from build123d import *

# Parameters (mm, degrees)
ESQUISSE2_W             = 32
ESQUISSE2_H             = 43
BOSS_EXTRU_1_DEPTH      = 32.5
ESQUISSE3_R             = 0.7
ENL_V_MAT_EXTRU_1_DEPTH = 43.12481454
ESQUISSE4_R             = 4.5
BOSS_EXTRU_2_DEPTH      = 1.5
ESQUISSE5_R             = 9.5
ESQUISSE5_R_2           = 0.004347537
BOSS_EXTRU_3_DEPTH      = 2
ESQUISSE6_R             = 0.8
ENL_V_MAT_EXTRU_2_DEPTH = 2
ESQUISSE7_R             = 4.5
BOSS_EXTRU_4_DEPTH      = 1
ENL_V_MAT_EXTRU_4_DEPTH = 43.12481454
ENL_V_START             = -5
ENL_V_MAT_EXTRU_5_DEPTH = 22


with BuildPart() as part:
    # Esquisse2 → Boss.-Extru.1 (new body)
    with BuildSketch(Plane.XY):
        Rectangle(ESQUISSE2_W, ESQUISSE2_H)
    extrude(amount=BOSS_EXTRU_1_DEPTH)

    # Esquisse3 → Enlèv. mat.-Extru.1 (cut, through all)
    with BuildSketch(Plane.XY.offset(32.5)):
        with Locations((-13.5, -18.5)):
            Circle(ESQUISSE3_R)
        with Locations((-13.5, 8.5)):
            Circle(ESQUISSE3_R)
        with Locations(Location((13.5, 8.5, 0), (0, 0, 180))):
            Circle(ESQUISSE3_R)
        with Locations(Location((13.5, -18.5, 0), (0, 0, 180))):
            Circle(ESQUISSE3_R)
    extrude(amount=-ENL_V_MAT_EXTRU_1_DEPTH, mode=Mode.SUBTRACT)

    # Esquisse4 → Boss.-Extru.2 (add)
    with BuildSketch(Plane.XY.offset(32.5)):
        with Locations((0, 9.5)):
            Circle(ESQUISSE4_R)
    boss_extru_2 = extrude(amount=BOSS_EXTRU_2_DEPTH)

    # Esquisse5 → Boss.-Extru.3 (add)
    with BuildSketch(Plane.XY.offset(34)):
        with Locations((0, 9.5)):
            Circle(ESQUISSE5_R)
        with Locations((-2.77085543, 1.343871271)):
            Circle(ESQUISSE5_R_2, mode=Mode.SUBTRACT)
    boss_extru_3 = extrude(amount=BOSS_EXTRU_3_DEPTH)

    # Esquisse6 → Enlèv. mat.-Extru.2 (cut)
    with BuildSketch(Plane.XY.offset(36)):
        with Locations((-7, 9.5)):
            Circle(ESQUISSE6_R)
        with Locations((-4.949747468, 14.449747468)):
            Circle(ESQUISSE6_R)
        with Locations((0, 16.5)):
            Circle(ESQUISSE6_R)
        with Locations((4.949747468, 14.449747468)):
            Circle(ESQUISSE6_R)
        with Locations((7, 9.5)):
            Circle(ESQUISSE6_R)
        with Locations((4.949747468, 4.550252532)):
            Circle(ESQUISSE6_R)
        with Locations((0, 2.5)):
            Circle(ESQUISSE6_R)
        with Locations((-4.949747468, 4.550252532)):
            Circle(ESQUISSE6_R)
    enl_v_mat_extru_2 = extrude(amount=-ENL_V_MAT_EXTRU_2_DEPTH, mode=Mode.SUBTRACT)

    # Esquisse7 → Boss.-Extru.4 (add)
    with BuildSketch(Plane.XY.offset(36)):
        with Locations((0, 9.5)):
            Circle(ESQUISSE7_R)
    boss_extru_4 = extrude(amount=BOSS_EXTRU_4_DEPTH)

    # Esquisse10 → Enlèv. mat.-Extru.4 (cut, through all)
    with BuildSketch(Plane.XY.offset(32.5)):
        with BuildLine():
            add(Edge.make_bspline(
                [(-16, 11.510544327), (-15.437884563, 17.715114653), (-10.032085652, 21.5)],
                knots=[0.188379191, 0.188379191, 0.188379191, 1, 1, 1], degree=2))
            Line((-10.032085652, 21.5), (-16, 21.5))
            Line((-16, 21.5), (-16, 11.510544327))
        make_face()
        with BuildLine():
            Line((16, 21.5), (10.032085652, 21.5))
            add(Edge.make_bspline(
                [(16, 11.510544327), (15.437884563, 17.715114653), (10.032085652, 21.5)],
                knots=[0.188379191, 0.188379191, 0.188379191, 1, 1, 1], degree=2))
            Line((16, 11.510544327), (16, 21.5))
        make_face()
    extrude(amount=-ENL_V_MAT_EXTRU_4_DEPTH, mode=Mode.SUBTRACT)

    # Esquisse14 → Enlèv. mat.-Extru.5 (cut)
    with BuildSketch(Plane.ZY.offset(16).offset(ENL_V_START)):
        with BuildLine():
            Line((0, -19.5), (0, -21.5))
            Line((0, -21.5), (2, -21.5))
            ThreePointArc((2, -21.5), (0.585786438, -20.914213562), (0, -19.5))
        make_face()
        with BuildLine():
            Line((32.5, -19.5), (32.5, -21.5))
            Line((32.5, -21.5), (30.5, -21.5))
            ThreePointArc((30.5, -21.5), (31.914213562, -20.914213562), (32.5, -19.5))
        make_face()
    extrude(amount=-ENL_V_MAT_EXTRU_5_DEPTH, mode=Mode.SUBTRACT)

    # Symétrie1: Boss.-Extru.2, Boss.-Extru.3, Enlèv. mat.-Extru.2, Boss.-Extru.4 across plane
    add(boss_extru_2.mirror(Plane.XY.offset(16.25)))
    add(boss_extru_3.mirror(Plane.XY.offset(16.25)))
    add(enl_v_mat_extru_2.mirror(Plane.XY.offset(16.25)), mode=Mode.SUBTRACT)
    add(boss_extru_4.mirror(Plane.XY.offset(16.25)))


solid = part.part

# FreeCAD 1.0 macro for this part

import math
import FreeCAD as App
import Part
import Sketcher

V = App.Vector

doc = App.newDocument("Part")
params = doc.addObject("Spreadsheet::Sheet", "Params")
for row, (alias, value) in enumerate([
    ("sketch1_width", "32 mm"),
    ("sketch1_height", "43 mm"),
    ("pad1_length", "32.5 mm"),
    ("sketch2_diameter", "1.4 mm"),
    ("sketch3_diameter", "9 mm"),
    ("pad2_length", "1.5 mm"),
    ("sketch4_diameter", "19 mm"),
    ("pad3_length", "2 mm"),
    ("sketch5_diameter", "1.6 mm"),
    ("pocket2_length", "2 mm"),
    ("sketch6_diameter", "9 mm"),
    ("pad4_length", "1 mm"),
    ("sketch8_radius", "2 mm"),
    ("pocket4_length", "22 mm"),
], start=1):
    params.set(f"A{row}", alias)
    params.set(f"B{row}", "=" + value)
    params.setAlias(f"B{row}", alias)

body = doc.addObject("PartDesign::Body", "Body")

# Sketch on XY plane
sketch1 = body.newObject("Sketcher::SketchObject", "Sketch")
sketch1.AttachmentSupport = (doc.getObject("XY_Plane"), [""])
sketch1.MapMode = "FlatFace"
sketch1.addGeometry([
    Part.LineSegment(V(-16, 21.5, 0), V(-16, -21.5, 0)),
    Part.LineSegment(V(-16, -21.5, 0), V(16, -21.5, 0)),
    Part.LineSegment(V(16, -21.5, 0), V(16, 21.5, 0)),
    Part.LineSegment(V(16, 21.5, 0), V(-16, 21.5, 0)),
], False)
sketch1.addConstraint([
    Sketcher.Constraint("Coincident", 0, 2, 1, 1),
    Sketcher.Constraint("Coincident", 1, 2, 2, 1),
    Sketcher.Constraint("Coincident", 2, 2, 3, 1),
    Sketcher.Constraint("Coincident", 3, 2, 0, 1),
    Sketcher.Constraint("Vertical", 0),
    Sketcher.Constraint("Horizontal", 1),
    Sketcher.Constraint("Vertical", 2),
    Sketcher.Constraint("Horizontal", 3),
    Sketcher.Constraint("Symmetric", 0, 2, 2, 2, -1, 1),
    Sketcher.Constraint("DistanceX", 1, 1, 1, 2, 32.0),
    Sketcher.Constraint("DistanceY", 0, 2, 0, 1, 43.0),
])
sketch1.setExpression("Constraints[9]", "Params.sketch1_width")
sketch1.setExpression("Constraints[10]", "Params.sketch1_height")
pad1 = body.newObject("PartDesign::Pad", "Pad")
pad1.Profile = sketch1
pad1.setExpression("Length", "Params.pad1_length")

# Sketch on XY plane
sketch2 = body.newObject("Sketcher::SketchObject", "Sketch001")
sketch2.AttachmentSupport = (doc.getObject("XY_Plane"), [""])
sketch2.MapMode = "FlatFace"
sketch2.AttachmentOffset = App.Placement(V(0, 0, 32.5), App.Rotation())
sketch2.addGeometry([
    Part.Circle(V(-13.5, -18.5, 0), V(0, 0, 1), 0.7),
    Part.Circle(V(-13.5, 8.5, 0), V(0, 0, 1), 0.7),
    Part.Circle(V(13.5, 8.5, 0), V(0, 0, 1), 0.7),
    Part.Circle(V(13.5, -18.5, 0), V(0, 0, 1), 0.7),
], False)
sketch2.addConstraint([
    Sketcher.Constraint("Equal", 0, 1),
    Sketcher.Constraint("Equal", 1, 2),
    Sketcher.Constraint("Equal", 2, 3),
    Sketcher.Constraint("Symmetric", 1, 3, 2, 3, -2),
    Sketcher.Constraint("Symmetric", 0, 3, 3, 3, -2),
    Sketcher.Constraint("Vertical", 0, 3, 1, 3),
    Sketcher.Constraint("Diameter", 0, 1.4),
    Sketcher.Constraint("DistanceY", 0, 3, 1, 3, 27.0),
    Sketcher.Constraint("DistanceX", 1, 3, 2, 3, 27.0),
    Sketcher.Constraint("DistanceY", 0, 3, -1, 1, 18.5),
])
sketch2.setExpression("Constraints[6]", "Params.sketch2_diameter")
pocket1 = body.newObject("PartDesign::Pocket", "Pocket")
pocket1.Profile = sketch2
pocket1.Type = "ThroughAll"

# Sketch on XY plane
sketch3 = body.newObject("Sketcher::SketchObject", "Sketch002")
sketch3.AttachmentSupport = (doc.getObject("XY_Plane"), [""])
sketch3.MapMode = "FlatFace"
sketch3.AttachmentOffset = App.Placement(V(0, 0, 32.5), App.Rotation())
sketch3.addGeometry(Part.Circle(V(0, 9.5, 0), V(0, 0, 1), 4.5), False)
sketch3.addConstraint([
    Sketcher.Constraint("PointOnObject", 0, 3, -2),
    Sketcher.Constraint("Diameter", 0, 9.0),
    Sketcher.Constraint("DistanceY", -1, 1, 0, 3, 9.5),
])
sketch3.setExpression("Constraints[1]", "Params.sketch3_diameter")
pad2 = body.newObject("PartDesign::Pad", "Pad001")
pad2.Profile = sketch3
pad2.setExpression("Length", "Params.pad2_length")

# Sketch on XY plane
sketch4 = body.newObject("Sketcher::SketchObject", "Sketch003")
sketch4.AttachmentSupport = (doc.getObject("XY_Plane"), [""])
sketch4.MapMode = "FlatFace"
sketch4.AttachmentOffset = App.Placement(V(0, 0, 34), App.Rotation())
sketch4.addGeometry([
    Part.Circle(V(0, 9.5, 0), V(0, 0, 1), 9.5),
    Part.Circle(V(-2.770855, 1.343871, 0), V(0, 0, 1), 0.004348),
], False)
sketch4.addConstraint([
    Sketcher.Constraint("PointOnObject", 0, 3, -2),
    Sketcher.Constraint("Diameter", 0, 19.0),
    Sketcher.Constraint("DistanceY", -1, 1, 0, 3, 9.5),
    Sketcher.Constraint("Diameter", 1, 0.008695),
    Sketcher.Constraint("DistanceY", -1, 1, 1, 3, 1.343871),
    Sketcher.Constraint("DistanceX", 1, 3, -1, 1, 2.770855),
])
sketch4.setExpression("Constraints[1]", "Params.sketch4_diameter")
pad3 = body.newObject("PartDesign::Pad", "Pad002")
pad3.Profile = sketch4
pad3.setExpression("Length", "Params.pad3_length")

# Sketch on XY plane
sketch5 = body.newObject("Sketcher::SketchObject", "Sketch004")
sketch5.AttachmentSupport = (doc.getObject("XY_Plane"), [""])
sketch5.MapMode = "FlatFace"
sketch5.AttachmentOffset = App.Placement(V(0, 0, 36), App.Rotation())
sketch5.addGeometry([
    Part.Circle(V(-7, 9.5, 0), V(0, 0, 1), 0.8),  # 0
    Part.Circle(V(-4.949747, 14.449747, 0), V(0, 0, 1), 0.8),  # 1
    Part.Circle(V(0, 16.5, 0), V(0, 0, 1), 0.8),  # 2
    Part.Circle(V(4.949747, 14.449747, 0), V(0, 0, 1), 0.8),  # 3
    Part.Circle(V(7, 9.5, 0), V(0, 0, 1), 0.8),  # 4
    Part.Circle(V(4.949747, 4.550253, 0), V(0, 0, 1), 0.8),  # 5
    Part.Circle(V(0, 2.5, 0), V(0, 0, 1), 0.8),  # 6
    Part.Circle(V(-4.949747, 4.550253, 0), V(0, 0, 1), 0.8),  # 7
], False)
sketch5.addConstraint([
    Sketcher.Constraint("Equal", 0, 1),
    Sketcher.Constraint("Equal", 1, 2),
    Sketcher.Constraint("Equal", 2, 3),
    Sketcher.Constraint("Equal", 3, 4),
    Sketcher.Constraint("Equal", 4, 5),
    Sketcher.Constraint("Equal", 5, 6),
    Sketcher.Constraint("Equal", 6, 7),
    Sketcher.Constraint("Symmetric", 1, 3, 3, 3, -2),
    Sketcher.Constraint("Symmetric", 0, 3, 4, 3, -2),
    Sketcher.Constraint("Symmetric", 5, 3, 7, 3, -2),
    Sketcher.Constraint("PointOnObject", 2, 3, -2),
    Sketcher.Constraint("PointOnObject", 6, 3, -2),
    Sketcher.Constraint("Vertical", 3, 3, 5, 3),
    Sketcher.Constraint("Diameter", 0, 1.6),
    Sketcher.Constraint("DistanceX", 0, 3, -1, 1, 7.0),
    Sketcher.Constraint("DistanceY", 0, 3, 2, 3, 7.0),
    Sketcher.Constraint("DistanceY", 6, 3, 0, 3, 7.0),
    Sketcher.Constraint("DistanceY", -1, 1, 0, 3, 9.5),
    Sketcher.Constraint("DistanceX", 1, 3, -1, 1, 4.949747),
    Sketcher.Constraint("DistanceY", -1, 1, 1, 3, 14.449747),
    Sketcher.Constraint("DistanceY", -1, 1, 5, 3, 4.550253),
])
sketch5.setExpression("Constraints[13]", "Params.sketch5_diameter")
pocket2 = body.newObject("PartDesign::Pocket", "Pocket001")
pocket2.Profile = sketch5
pocket2.setExpression("Length", "Params.pocket2_length")

# Sketch on XY plane
sketch6 = body.newObject("Sketcher::SketchObject", "Sketch005")
sketch6.AttachmentSupport = (doc.getObject("XY_Plane"), [""])
sketch6.MapMode = "FlatFace"
sketch6.AttachmentOffset = App.Placement(V(0, 0, 36), App.Rotation())
sketch6.addGeometry(Part.Circle(V(0, 9.5, 0), V(0, 0, 1), 4.5), False)
sketch6.addConstraint([
    Sketcher.Constraint("PointOnObject", 0, 3, -2),
    Sketcher.Constraint("Diameter", 0, 9.0),
    Sketcher.Constraint("DistanceY", -1, 1, 0, 3, 9.5),
])
sketch6.setExpression("Constraints[1]", "Params.sketch6_diameter")
pad4 = body.newObject("PartDesign::Pad", "Pad003")
pad4.Profile = sketch6
pad4.setExpression("Length", "Params.pad4_length")

# Sketch on XY plane
sketch7 = body.newObject("Sketcher::SketchObject", "Sketch006")
sketch7.AttachmentSupport = (doc.getObject("XY_Plane"), [""])
sketch7.MapMode = "FlatFace"
sketch7.AttachmentOffset = App.Placement(V(0, 0, 32.5), App.Rotation())
sketch7.addGeometry([
    Part.BSplineCurve([V(-16, 11.510544, 0), V(-15.437885, 17.715115, 0), V(-10.032086, 21.5, 0)], [3, 3], [0.188379191, 1], False, 2, [1, 1, 1], False),  # 0
    Part.LineSegment(V(-10.032086, 21.5, 0), V(-16, 21.5, 0)),  # 1
    Part.LineSegment(V(-16, 21.5, 0), V(-16, 11.510544, 0)),  # 2
    Part.LineSegment(V(16, 21.5, 0), V(10.032086, 21.5, 0)),  # 3
    Part.BSplineCurve([V(16, 11.510544, 0), V(15.437885, 17.715115, 0), V(10.032086, 21.5, 0)], [3, 3], [0.188379191, 1], False, 2, [1, 1, 1], False),  # 4
    Part.LineSegment(V(16, 11.510544, 0), V(16, 21.5, 0)),  # 5
], False)
sketch7.addConstraint([
    Sketcher.Constraint("Block", 0),
    Sketcher.Constraint("Block", 4),
    Sketcher.Constraint("Coincident", 0, 2, 1, 1),
    Sketcher.Constraint("Coincident", 1, 2, 2, 1),
    Sketcher.Constraint("Coincident", 2, 2, 0, 1),
    Sketcher.Constraint("Coincident", 3, 2, 4, 2),
    Sketcher.Constraint("Coincident", 4, 1, 5, 1),
    Sketcher.Constraint("Coincident", 5, 2, 3, 1),
    Sketcher.Constraint("Horizontal", 1),
    Sketcher.Constraint("Vertical", 2),
    Sketcher.Constraint("Horizontal", 3),
    Sketcher.Constraint("Vertical", 5),
])
pocket3 = body.newObject("PartDesign::Pocket", "Pocket002")
pocket3.Profile = sketch7
pocket3.Type = "ThroughAll"

# Sketch on YZ plane
sketch8 = body.newObject("Sketcher::SketchObject", "Sketch007")
sketch8.AttachmentSupport = (doc.getObject("YZ_Plane"), [""])
sketch8.MapMode = "FlatFace"
sketch8.AttachmentOffset = App.Placement(V(0, 0, -11), App.Rotation())
sketch8.addGeometry([
    Part.LineSegment(V(-19.5, 0, 0), V(-21.5, 0, 0)),  # 0
    Part.LineSegment(V(-21.5, 0, 0), V(-21.5, 2, 0)),  # 1
    Part.ArcOfCircle(Part.Circle(V(-19.5, 2, 0), V(0, 0, 1), 2), math.radians(-180), math.radians(-90)),  # 2
    Part.LineSegment(V(-21.5, 32.5, 0), V(-19.5, 32.5, 0)),  # 3
    Part.ArcOfCircle(Part.Circle(V(-19.5, 30.5, 0), V(0, 0, 1), 2), math.radians(90), math.radians(180)),  # 4
    Part.LineSegment(V(-21.5, 30.5, 0), V(-21.5, 32.5, 0)),  # 5
], False)
sketch8.addConstraint([
    Sketcher.Constraint("Coincident", 0, 2, 1, 1),
    Sketcher.Constraint("Tangent", 1, 2, 2, 1),
    Sketcher.Constraint("Tangent", 2, 2, 0, 1),
    Sketcher.Constraint("Tangent", 3, 2, 4, 1),
    Sketcher.Constraint("Tangent", 4, 2, 5, 1),
    Sketcher.Constraint("Coincident", 5, 2, 3, 1),
    Sketcher.Constraint("Horizontal", 0),
    Sketcher.Constraint("Vertical", 1),
    Sketcher.Constraint("Horizontal", 3),
    Sketcher.Constraint("Vertical", 5),
    Sketcher.Constraint("Equal", 2, 4),
    Sketcher.Constraint("PointOnObject", 0, 2, -1),
    Sketcher.Constraint("Vertical", 2, 3, 4, 3),
    Sketcher.Constraint("Radius", 2, 2.0),
    Sketcher.Constraint("DistanceX", 2, 3, -1, 1, 19.5),
    Sketcher.Constraint("DistanceY", -1, 1, 4, 3, 30.5),
])
sketch8.setExpression("Constraints[13]", "Params.sketch8_radius")
pocket4 = body.newObject("PartDesign::Pocket", "Pocket003")
pocket4.Profile = sketch8
pocket4.setExpression("Length", "Params.pocket4_length")
pocket4.Reversed = True
doc.recompute()

datumplane = body.newObject("PartDesign::Plane", "DatumPlane")
datumplane.AttachmentSupport = (doc.getObject("XY_Plane"), [""])
datumplane.MapMode = "FlatFace"
datumplane.AttachmentOffset = App.Placement(V(0, 0, 16.25), App.Rotation())
mirrored = body.newObject("PartDesign::Mirrored", "Mirrored")
mirrored.Originals = [pad2, pad3, pocket2, pad4]
mirrored.MirrorPlane = (datumplane, [""])
body.Tip = mirrored

doc.recompute()
